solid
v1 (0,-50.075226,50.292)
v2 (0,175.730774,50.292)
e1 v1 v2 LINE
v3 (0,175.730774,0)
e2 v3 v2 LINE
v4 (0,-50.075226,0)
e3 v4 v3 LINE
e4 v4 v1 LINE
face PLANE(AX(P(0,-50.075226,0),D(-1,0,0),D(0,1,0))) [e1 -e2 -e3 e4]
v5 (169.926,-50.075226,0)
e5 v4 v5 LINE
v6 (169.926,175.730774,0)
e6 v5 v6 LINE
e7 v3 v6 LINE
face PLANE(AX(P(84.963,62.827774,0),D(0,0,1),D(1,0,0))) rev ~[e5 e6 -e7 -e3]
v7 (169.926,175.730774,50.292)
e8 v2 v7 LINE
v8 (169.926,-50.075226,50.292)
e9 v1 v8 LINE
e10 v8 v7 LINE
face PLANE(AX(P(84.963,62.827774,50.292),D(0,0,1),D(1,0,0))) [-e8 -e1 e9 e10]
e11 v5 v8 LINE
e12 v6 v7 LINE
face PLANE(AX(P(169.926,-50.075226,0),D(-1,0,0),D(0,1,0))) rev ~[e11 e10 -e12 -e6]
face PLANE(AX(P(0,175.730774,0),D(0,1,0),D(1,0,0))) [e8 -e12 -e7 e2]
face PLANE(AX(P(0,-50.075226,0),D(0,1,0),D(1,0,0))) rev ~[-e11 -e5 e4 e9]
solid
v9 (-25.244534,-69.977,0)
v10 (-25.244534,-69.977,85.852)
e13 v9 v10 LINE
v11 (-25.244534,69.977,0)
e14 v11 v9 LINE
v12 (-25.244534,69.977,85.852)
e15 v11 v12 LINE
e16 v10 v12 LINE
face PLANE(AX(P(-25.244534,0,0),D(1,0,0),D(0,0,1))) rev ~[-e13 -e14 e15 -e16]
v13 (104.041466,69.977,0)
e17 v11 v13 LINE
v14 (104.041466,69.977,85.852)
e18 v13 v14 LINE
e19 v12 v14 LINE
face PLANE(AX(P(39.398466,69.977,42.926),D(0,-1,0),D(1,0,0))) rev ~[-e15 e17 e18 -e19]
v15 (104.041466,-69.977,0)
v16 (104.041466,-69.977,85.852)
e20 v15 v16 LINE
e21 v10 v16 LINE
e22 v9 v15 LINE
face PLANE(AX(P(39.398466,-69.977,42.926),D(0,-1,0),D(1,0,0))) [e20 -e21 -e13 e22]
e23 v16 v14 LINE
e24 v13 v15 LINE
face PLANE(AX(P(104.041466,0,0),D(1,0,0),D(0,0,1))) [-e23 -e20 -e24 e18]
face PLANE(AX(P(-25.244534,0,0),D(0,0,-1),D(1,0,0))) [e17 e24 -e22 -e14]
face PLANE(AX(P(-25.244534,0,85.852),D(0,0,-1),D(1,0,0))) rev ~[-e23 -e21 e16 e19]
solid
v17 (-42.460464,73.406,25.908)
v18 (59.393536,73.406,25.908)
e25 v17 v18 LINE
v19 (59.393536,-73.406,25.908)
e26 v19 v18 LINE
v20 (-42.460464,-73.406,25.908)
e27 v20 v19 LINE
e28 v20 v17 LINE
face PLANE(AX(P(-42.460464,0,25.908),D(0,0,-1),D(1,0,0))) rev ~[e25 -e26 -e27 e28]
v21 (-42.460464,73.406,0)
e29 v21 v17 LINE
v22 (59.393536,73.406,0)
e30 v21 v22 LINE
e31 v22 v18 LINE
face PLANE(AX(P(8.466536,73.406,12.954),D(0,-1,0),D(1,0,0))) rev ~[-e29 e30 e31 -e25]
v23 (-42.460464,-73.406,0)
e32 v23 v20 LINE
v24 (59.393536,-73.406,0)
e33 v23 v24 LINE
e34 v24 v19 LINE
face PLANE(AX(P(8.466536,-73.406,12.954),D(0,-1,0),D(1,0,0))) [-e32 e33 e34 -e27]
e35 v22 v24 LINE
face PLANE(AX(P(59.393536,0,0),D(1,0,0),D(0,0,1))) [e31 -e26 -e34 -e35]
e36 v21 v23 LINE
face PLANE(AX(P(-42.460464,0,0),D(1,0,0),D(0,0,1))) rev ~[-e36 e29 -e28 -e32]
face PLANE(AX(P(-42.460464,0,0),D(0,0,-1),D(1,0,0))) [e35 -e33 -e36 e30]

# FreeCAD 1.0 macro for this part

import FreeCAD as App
import Part
import Sketcher
Q = App.Units.Quantity

doc = App.newDocument("Part")
body = doc.addObject("PartDesign::Body", "Body")

sketch1 = body.newObject("Sketcher::SketchObject", "Sketch")
sketch1.AttachmentSupport = (doc.getObject("XZ_Plane"), [""])
sketch1.MapMode = "FlatFace"
sketch1.addGeometry([
    Part.LineSegment(App.Vector(-42, 26, 0), App.Vector(-42, 0, 0)),
    Part.LineSegment(App.Vector(-42, 0, 0), App.Vector(59, 0, 0)),
    Part.LineSegment(App.Vector(59, 0, 0), App.Vector(59, 26, 0)),
    Part.LineSegment(App.Vector(59, 26, 0), App.Vector(-42, 26, 0)),
], False)
sketch1.addConstraint([
    Sketcher.Constraint("Coincident", 0, 2, 1, 1),
    Sketcher.Constraint("Coincident", 1, 2, 2, 1),
    Sketcher.Constraint("Coincident", 2, 2, 3, 1),
    Sketcher.Constraint("Coincident", 3, 2, 0, 1),
    Sketcher.Constraint("Vertical", 0),
    Sketcher.Constraint("Horizontal", 1),
    Sketcher.Constraint("Vertical", 2),
    Sketcher.Constraint("Horizontal", 3),
    Sketcher.Constraint("PointOnObject", 0, 2, -1),
    Sketcher.Constraint("DistanceX", 1, 1, 1, 2, Q("4.01 in")),
    Sketcher.Constraint("DistanceY", 0, 2, 0, 1, Q("1.02 in")),
    Sketcher.Constraint("DistanceX", 0, 2, -1, 1, Q("42.460464 mm")),
])
pad1 = body.newObject("PartDesign::Pad", "Pad")
pad1.Profile = sketch1
pad1.Length = Q("5.78 in")
pad1.Midplane = True
body2 = doc.addObject("PartDesign::Body", "Body001")

sketch2 = body2.newObject("Sketcher::SketchObject", "Sketch001")
sketch2.AttachmentSupport = (doc.getObject("XZ_Plane001"), [""])
sketch2.MapMode = "FlatFace"
sketch2.addGeometry([
    Part.LineSegment(App.Vector(-25, 86, 0), App.Vector(-25, 0, 0)),
    Part.LineSegment(App.Vector(-25, 0, 0), App.Vector(104, 0, 0)),
    Part.LineSegment(App.Vector(104, 0, 0), App.Vector(104, 86, 0)),
    Part.LineSegment(App.Vector(104, 86, 0), App.Vector(-25, 86, 0)),
], False)
sketch2.addConstraint([
    Sketcher.Constraint("Coincident", 0, 2, 1, 1),
    Sketcher.Constraint("Coincident", 1, 2, 2, 1),
    Sketcher.Constraint("Coincident", 2, 2, 3, 1),
    Sketcher.Constraint("Coincident", 3, 2, 0, 1),
    Sketcher.Constraint("Vertical", 0),
    Sketcher.Constraint("Horizontal", 1),
    Sketcher.Constraint("Vertical", 2),
    Sketcher.Constraint("Horizontal", 3),
    Sketcher.Constraint("PointOnObject", 0, 2, -1),
    Sketcher.Constraint("DistanceX", 1, 1, 1, 2, Q("5.09 in")),
    Sketcher.Constraint("DistanceY", 0, 2, 0, 1, Q("3.38 in")),
    Sketcher.Constraint("DistanceX", 0, 2, -1, 1, Q("25.244534 mm")),
])
pad2 = body2.newObject("PartDesign::Pad", "Pad001")
pad2.Profile = sketch2
pad2.Length = Q("5.51 in")
pad2.Midplane = True
body3 = doc.addObject("PartDesign::Body", "Body002")

sketch3 = body3.newObject("Sketcher::SketchObject", "Sketch002")
sketch3.AttachmentSupport = (doc.getObject("XY_Plane002"), [""])
sketch3.MapMode = "FlatFace"
sketch3.addGeometry([
    Part.LineSegment(App.Vector(0, 176, 0), App.Vector(0, -50, 0)),
    Part.LineSegment(App.Vector(0, -50, 0), App.Vector(170, -50, 0)),
    Part.LineSegment(App.Vector(170, -50, 0), App.Vector(170, 176, 0)),
    Part.LineSegment(App.Vector(170, 176, 0), App.Vector(0, 176, 0)),
], False)
sketch3.addConstraint([
    Sketcher.Constraint("Coincident", 0, 2, 1, 1),
    Sketcher.Constraint("Coincident", 1, 2, 2, 1),
    Sketcher.Constraint("Coincident", 2, 2, 3, 1),
    Sketcher.Constraint("Coincident", 3, 2, 0, 1),
    Sketcher.Constraint("Vertical", 0),
    Sketcher.Constraint("Horizontal", 1),
    Sketcher.Constraint("Vertical", 2),
    Sketcher.Constraint("Horizontal", 3),
    Sketcher.Constraint("PointOnObject", 0, 2, -2),
    Sketcher.Constraint("DistanceX", 1, 1, 1, 2, Q("6.69 in")),
    Sketcher.Constraint("DistanceY", 0, 2, 0, 1, Q("8.89 in")),
    Sketcher.Constraint("DistanceY", 0, 2, -1, 1, Q("50.075226 mm")),
])
pad3 = body3.newObject("PartDesign::Pad", "Pad002")
pad3.Profile = sketch3
pad3.Length = Q("1.98 in")

doc.recompute()
